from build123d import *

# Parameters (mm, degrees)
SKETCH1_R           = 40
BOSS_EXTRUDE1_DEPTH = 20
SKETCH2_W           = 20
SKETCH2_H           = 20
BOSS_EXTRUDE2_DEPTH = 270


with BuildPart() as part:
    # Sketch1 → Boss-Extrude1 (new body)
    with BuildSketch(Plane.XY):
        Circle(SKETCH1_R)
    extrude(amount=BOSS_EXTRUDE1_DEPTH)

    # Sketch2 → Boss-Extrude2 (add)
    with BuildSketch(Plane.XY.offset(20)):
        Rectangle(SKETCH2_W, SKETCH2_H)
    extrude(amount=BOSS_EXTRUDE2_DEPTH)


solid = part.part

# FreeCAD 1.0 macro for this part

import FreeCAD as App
import Part
import Sketcher

V = App.Vector
Q = App.Units.Quantity

doc = App.newDocument("Part")
body = doc.addObject("PartDesign::Body", "Body")

# Sketch on XY plane
sketch1 = doc.addObject("Sketcher::SketchObject", "Sketch")
body.addObject(sketch1)
sketch1.AttachmentSupport = (doc.XY_Plane, [""])
sketch1.MapMode = "FlatFace"
sketch1.addGeometry(Part.Circle(V(0, 0, 0), V(0, 0, 1), 40), False)
sketch1.addConstraint(Sketcher.Constraint("Coincident", 0, 3, -1, 1))
sketch1.addConstraint(Sketcher.Constraint("Diameter", 0, Q("80 mm")))
pad1 = doc.addObject("PartDesign::Pad", "Pad")
body.addObject(pad1)
pad1.Profile = sketch1
pad1.Length = 20

# Sketch on XY plane
sketch2 = doc.addObject("Sketcher::SketchObject", "Sketch001")
body.addObject(sketch2)
sketch2.AttachmentSupport = (doc.XY_Plane, [""])
sketch2.MapMode = "FlatFace"
sketch2.AttachmentOffset = App.Placement(V(0, 0, 20), App.Rotation())
sketch2.addGeometry(Part.LineSegment(V(-10, 10, 0), V(-10, -10, 0)), False)
sketch2.addGeometry(Part.LineSegment(V(-10, -10, 0), V(10, -10, 0)), False)
sketch2.addGeometry(Part.LineSegment(V(10, -10, 0), V(10, 10, 0)), False)
sketch2.addGeometry(Part.LineSegment(V(10, 10, 0), V(-10, 10, 0)), False)
sketch2.addConstraint(Sketcher.Constraint("Coincident", 0, 2, 1, 1))
sketch2.addConstraint(Sketcher.Constraint("Coincident", 1, 2, 2, 1))
sketch2.addConstraint(Sketcher.Constraint("Coincident", 2, 2, 3, 1))
sketch2.addConstraint(Sketcher.Constraint("Coincident", 3, 2, 0, 1))
sketch2.addConstraint(Sketcher.Constraint("Vertical", 0))
sketch2.addConstraint(Sketcher.Constraint("Horizontal", 1))
sketch2.addConstraint(Sketcher.Constraint("Vertical", 2))
sketch2.addConstraint(Sketcher.Constraint("Horizontal", 3))
sketch2.addConstraint(Sketcher.Constraint("Symmetric", 0, 2, 2, 2, -1, 1))
sketch2.addConstraint(Sketcher.Constraint("Equal", 3, 0))
sketch2.addConstraint(Sketcher.Constraint("DistanceX", 1, 1, 1, 2, Q("20 mm")))
pad2 = doc.addObject("PartDesign::Pad", "Pad001")
body.addObject(pad2)
pad2.Profile = sketch2
pad2.Length = 270

doc.recompute()
